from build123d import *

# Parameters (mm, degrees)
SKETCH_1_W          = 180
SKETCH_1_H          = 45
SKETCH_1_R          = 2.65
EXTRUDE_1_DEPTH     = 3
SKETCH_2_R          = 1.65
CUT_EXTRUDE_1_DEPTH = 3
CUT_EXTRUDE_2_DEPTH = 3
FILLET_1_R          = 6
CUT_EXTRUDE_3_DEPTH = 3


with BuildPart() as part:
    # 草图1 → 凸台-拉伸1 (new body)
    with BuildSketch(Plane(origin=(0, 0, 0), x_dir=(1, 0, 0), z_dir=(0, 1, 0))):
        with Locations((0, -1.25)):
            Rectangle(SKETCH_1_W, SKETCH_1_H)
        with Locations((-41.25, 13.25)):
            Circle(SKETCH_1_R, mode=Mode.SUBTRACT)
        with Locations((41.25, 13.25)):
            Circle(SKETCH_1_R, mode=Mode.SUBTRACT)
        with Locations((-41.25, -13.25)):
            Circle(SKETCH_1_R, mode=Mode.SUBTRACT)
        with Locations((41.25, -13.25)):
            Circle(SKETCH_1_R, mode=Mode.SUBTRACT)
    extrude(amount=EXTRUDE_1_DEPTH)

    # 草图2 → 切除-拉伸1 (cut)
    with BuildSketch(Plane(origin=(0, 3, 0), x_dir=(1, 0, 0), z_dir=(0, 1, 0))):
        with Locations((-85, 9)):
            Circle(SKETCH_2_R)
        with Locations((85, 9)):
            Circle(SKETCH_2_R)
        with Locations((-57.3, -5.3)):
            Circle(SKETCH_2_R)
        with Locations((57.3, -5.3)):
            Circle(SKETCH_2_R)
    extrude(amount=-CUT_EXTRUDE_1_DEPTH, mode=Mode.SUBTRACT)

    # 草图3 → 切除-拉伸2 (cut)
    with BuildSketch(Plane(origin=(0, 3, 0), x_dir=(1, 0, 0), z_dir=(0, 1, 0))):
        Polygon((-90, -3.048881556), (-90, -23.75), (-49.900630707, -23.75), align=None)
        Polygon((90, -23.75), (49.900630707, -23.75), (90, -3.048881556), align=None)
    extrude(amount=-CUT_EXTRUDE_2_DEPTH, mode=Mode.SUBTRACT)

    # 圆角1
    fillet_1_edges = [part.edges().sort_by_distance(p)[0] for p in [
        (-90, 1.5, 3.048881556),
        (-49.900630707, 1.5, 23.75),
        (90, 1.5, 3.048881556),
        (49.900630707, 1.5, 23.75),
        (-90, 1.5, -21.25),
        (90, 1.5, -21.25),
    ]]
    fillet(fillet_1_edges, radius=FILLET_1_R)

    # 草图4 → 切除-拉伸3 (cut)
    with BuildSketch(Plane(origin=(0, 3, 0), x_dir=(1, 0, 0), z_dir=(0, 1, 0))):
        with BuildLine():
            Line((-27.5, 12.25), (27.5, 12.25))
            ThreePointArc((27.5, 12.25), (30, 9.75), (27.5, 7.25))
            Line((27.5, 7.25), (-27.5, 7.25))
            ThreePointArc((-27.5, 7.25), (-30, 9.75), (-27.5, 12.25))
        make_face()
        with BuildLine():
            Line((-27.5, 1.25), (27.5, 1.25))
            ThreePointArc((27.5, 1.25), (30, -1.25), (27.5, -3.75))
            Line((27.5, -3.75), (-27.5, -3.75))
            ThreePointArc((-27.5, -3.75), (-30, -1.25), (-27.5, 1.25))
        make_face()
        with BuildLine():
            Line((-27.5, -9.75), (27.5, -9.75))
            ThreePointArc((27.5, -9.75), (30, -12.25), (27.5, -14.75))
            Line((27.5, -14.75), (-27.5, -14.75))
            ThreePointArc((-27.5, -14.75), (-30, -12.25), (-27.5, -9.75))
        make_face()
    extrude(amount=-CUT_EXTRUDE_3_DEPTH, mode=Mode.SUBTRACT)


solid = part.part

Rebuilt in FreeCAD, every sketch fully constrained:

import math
import FreeCAD as App
import Part
import Sketcher
from FreeCAD import Vector
Q = App.Units.Quantity


def edges_at(feature, points):
    """Names of the edges that pass closest to the given points."""
    edges = feature.Shape.Edges
    near = lambda p: min(range(len(edges)), key=lambda i: edges[i].distToShape(Part.Vertex(*p))[0])
    return sorted({f"Edge{near(p) + 1}" for p in points})


def add_polygon(sketch, points):
    """Adds a closed chain of lines whose ends are joined by coincident constraints."""
    first, n = sketch.GeometryCount, len(points)
    for a, b in zip(points, points[1:] + points[:1]):
        sketch.addGeometry(Part.LineSegment(App.Vector(*a, 0), App.Vector(*b, 0)), False)
    for i in range(n):
        sketch.addConstraint(Sketcher.Constraint("Coincident", first + i, 2, first + (i + 1) % n, 1))

doc = App.newDocument("Part")
body = doc.addObject("PartDesign::Body", "Body")

# Sketch on XZ plane
sketch1 = body.newObject("Sketcher::SketchObject", "Sketch")
sketch1.AttachmentSupport = (doc.getObject("XZ_Plane"), [""])
sketch1.MapMode = "FlatFace"
add_polygon(sketch1, [(-90, -21.2), (-90, 23.8), (90, 23.8), (90, -21.2)])  # lines 0-3
sketch1.addGeometry(Part.Circle(Vector(-41.2, 13.2, 0), Vector(0, 0, 1), 2.6), False)  # 4
sketch1.addGeometry(Part.Circle(Vector(41.2, 13.2, 0), Vector(0, 0, 1), 2.6), False)  # 5
sketch1.addGeometry(Part.Circle(Vector(-41.2, -13.2, 0), Vector(0, 0, 1), 2.6), False)  # 6
sketch1.addGeometry(Part.Circle(Vector(41.2, -13.2, 0), Vector(0, 0, 1), 2.6), False)  # 7
sketch1.addConstraint(Sketcher.Constraint("Vertical", 0))
sketch1.addConstraint(Sketcher.Constraint("Horizontal", 1))
sketch1.addConstraint(Sketcher.Constraint("Vertical", 2))
sketch1.addConstraint(Sketcher.Constraint("Horizontal", 3))
sketch1.addConstraint(Sketcher.Constraint("Equal", 4, 5))
sketch1.addConstraint(Sketcher.Constraint("Equal", 5, 6))
sketch1.addConstraint(Sketcher.Constraint("Equal", 6, 7))
sketch1.addConstraint(Sketcher.Constraint("Symmetric", 5, 3, 6, 3, -1, 1))
sketch1.addConstraint(Sketcher.Constraint("Symmetric", 4, 3, 7, 3, -1, 1))
sketch1.addConstraint(Sketcher.Constraint("Symmetric", 4, 3, 5, 3, -2))
sketch1.addConstraint(Sketcher.Constraint("Diameter", 4, Q("5.3 mm")))
sketch1.addConstraint(Sketcher.Constraint("DistanceX", 1, 1, 1, 2, Q("180 mm")))
sketch1.addConstraint(Sketcher.Constraint("DistanceY", 0, 1, 0, 2, Q("45 mm")))
sketch1.addConstraint(Sketcher.Constraint("DistanceX", 0, 2, -1, 1, Q("90 mm")))
sketch1.addConstraint(Sketcher.Constraint("DistanceY", 6, 3, 0, 2, Q("37 mm")))
sketch1.addConstraint(Sketcher.Constraint("DistanceX", 4, 3, 5, 3, Q("82.5 mm")))
sketch1.addConstraint(Sketcher.Constraint("DistanceY", 6, 3, 4, 3, Q("26.5 mm")))
pad1 = body.newObject("PartDesign::Pad", "Pad")
pad1.Profile = sketch1
pad1.Length = 3
pad1.Reversed = True

# Sketch on XZ plane
sketch2 = body.newObject("Sketcher::SketchObject", "Sketch001")
sketch2.AttachmentSupport = (doc.getObject("XZ_Plane"), [""])
sketch2.MapMode = "FlatFace"
sketch2.AttachmentOffset = App.Placement(Vector(0, 0, -3), App.Rotation())
sketch2.addGeometry(Part.Circle(Vector(-85, -9, 0), Vector(0, 0, 1), 1.6), False)
sketch2.addGeometry(Part.Circle(Vector(85, -9, 0), Vector(0, 0, 1), 1.6), False)
sketch2.addGeometry(Part.Circle(Vector(-57.3, 5.3, 0), Vector(0, 0, 1), 1.6), False)
sketch2.addGeometry(Part.Circle(Vector(57.3, 5.3, 0), Vector(0, 0, 1), 1.6), False)
sketch2.addConstraint(Sketcher.Constraint("Equal", 0, 1))
sketch2.addConstraint(Sketcher.Constraint("Equal", 1, 2))
sketch2.addConstraint(Sketcher.Constraint("Equal", 2, 3))
sketch2.addConstraint(Sketcher.Constraint("Symmetric", 0, 3, 1, 3, -2))
sketch2.addConstraint(Sketcher.Constraint("Symmetric", 2, 3, 3, 3, -2))
sketch2.addConstraint(Sketcher.Constraint("Diameter", 0, Q("3.3 mm")))
sketch2.addConstraint(Sketcher.Constraint("DistanceX", 0, 3, -1, 1, Q("85 mm")))
sketch2.addConstraint(Sketcher.Constraint("DistanceY", 0, 3, -1, 1, Q("9 mm")))
sketch2.addConstraint(Sketcher.Constraint("DistanceX", 2, 3, -1, 1, Q("57.3 mm")))
sketch2.addConstraint(Sketcher.Constraint("DistanceY", -1, 1, 2, 3, Q("5.3 mm")))
pocket1 = body.newObject("PartDesign::Pocket", "Pocket")
pocket1.Profile = sketch2
pocket1.Length = 3
pocket1.Reversed = True

# Sketch on XZ plane
sketch3 = body.newObject("Sketcher::SketchObject", "Sketch002")
sketch3.AttachmentSupport = (doc.getObject("XZ_Plane"), [""])
sketch3.MapMode = "FlatFace"
sketch3.AttachmentOffset = App.Placement(Vector(0, 0, -3), App.Rotation())
add_polygon(sketch3, [(-90, 3), (-90, 24), (-50, 24)])  # lines 0-2
add_polygon(sketch3, [(50, 24), (90, 24), (90, 3)])  # lines 3-5
sketch3.addConstraint(Sketcher.Constraint("Vertical", 0))
sketch3.addConstraint(Sketcher.Constraint("Horizontal", 1))
sketch3.addConstraint(Sketcher.Constraint("Horizontal", 3))
sketch3.addConstraint(Sketcher.Constraint("Vertical", 4))
sketch3.addConstraint(Sketcher.Constraint("Symmetric", 0, 2, 3, 2, -2))
sketch3.addConstraint(Sketcher.Constraint("Horizontal", 2, 2, 4, 2))
sketch3.addConstraint(Sketcher.Constraint("Equal", 1, 3))
sketch3.addConstraint(Sketcher.Constraint("DistanceX", 0, 2, -1, 1, Q("90 mm")))
sketch3.addConstraint(Sketcher.Constraint("DistanceY", -1, 1, 0, 2, Q("23.75 mm")))
sketch3.addConstraint(Sketcher.Constraint("DistanceX", 1, 1, 1, 2, Q("40.099369 mm")))
sketch3.addConstraint(Sketcher.Constraint("DistanceY", 0, 1, 0, 2, Q("20.701118 mm")))
pocket2 = body.newObject("PartDesign::Pocket", "Pocket001")
pocket2.Profile = sketch3
pocket2.Length = 3
pocket2.Reversed = True
doc.recompute()

fillet = body.newObject("PartDesign::Fillet", "Fillet")
fillet.Base = (pocket2, edges_at(pocket2, [
    (-90, 1.5, 3.049),
    (-49.901, 1.5, 23.75),
    (90, 1.5, 3.049),
    (49.901, 1.5, 23.75),
    (-90, 1.5, -21.25),
    (90, 1.5, -21.25),
]))
fillet.Radius = 6

# Sketch on XZ plane
sketch4 = body.newObject("Sketcher::SketchObject", "Sketch003")
sketch4.AttachmentSupport = (doc.getObject("XZ_Plane"), [""])
sketch4.MapMode = "FlatFace"
sketch4.AttachmentOffset = App.Placement(Vector(0, 0, -3), App.Rotation())
sketch4.addGeometry(Part.LineSegment(Vector(27.5, -12.2, 0), Vector(-27.5, -12.2, 0)), False)
sketch4.addGeometry(Part.ArcOfCircle(Part.Circle(Vector(-27.5, -9.8, 0), Vector(0, 0, 1), 2.5), math.radians(90), math.radians(270)), False)
sketch4.addGeometry(Part.LineSegment(Vector(-27.5, -7.2, 0), Vector(27.5, -7.2, 0)), False)
sketch4.addGeometry(Part.ArcOfCircle(Part.Circle(Vector(27.5, -9.8, 0), Vector(0, 0, 1), 2.5), math.radians(-90), math.radians(90)), False)
sketch4.addGeometry(Part.LineSegment(Vector(27.5, -1.2, 0), Vector(-27.5, -1.2, 0)), False)
sketch4.addGeometry(Part.ArcOfCircle(Part.Circle(Vector(-27.5, 1.2, 0), Vector(0, 0, 1), 2.5), math.radians(90), math.radians(270)), False)
sketch4.addGeometry(Part.LineSegment(Vector(-27.5, 3.8, 0), Vector(27.5, 3.8, 0)), False)
sketch4.addGeometry(Part.ArcOfCircle(Part.Circle(Vector(27.5, 1.2, 0), Vector(0, 0, 1), 2.5), math.radians(-90), math.radians(90)), False)
sketch4.addGeometry(Part.LineSegment(Vector(27.5, 9.8, 0), Vector(-27.5, 9.8, 0)), False)
sketch4.addGeometry(Part.ArcOfCircle(Part.Circle(Vector(-27.5, 12.2, 0), Vector(0, 0, 1), 2.5), math.radians(90), math.radians(270)), False)
sketch4.addGeometry(Part.LineSegment(Vector(-27.5, 14.8, 0), Vector(27.5, 14.8, 0)), False)
sketch4.addGeometry(Part.ArcOfCircle(Part.Circle(Vector(27.5, 12.2, 0), Vector(0, 0, 1), 2.5), math.radians(-90), math.radians(90)), False)
sketch4.addConstraint(Sketcher.Constraint("Tangent", 0, 2, 1, 2))
sketch4.addConstraint(Sketcher.Constraint("Tangent", 1, 1, 2, 1))
sketch4.addConstraint(Sketcher.Constraint("Tangent", 2, 2, 3, 2))
sketch4.addConstraint(Sketcher.Constraint("Tangent", 3, 1, 0, 1))
sketch4.addConstraint(Sketcher.Constraint("Tangent", 4, 2, 5, 2))
sketch4.addConstraint(Sketcher.Constraint("Tangent", 5, 1, 6, 1))
sketch4.addConstraint(Sketcher.Constraint("Tangent", 6, 2, 7, 2))
sketch4.addConstraint(Sketcher.Constraint("Tangent", 7, 1, 4, 1))
sketch4.addConstraint(Sketcher.Constraint("Tangent", 8, 2, 9, 2))
sketch4.addConstraint(Sketcher.Constraint("Tangent", 9, 1, 10, 1))
sketch4.addConstraint(Sketcher.Constraint("Tangent", 10, 2, 11, 2))
sketch4.addConstraint(Sketcher.Constraint("Tangent", 11, 1, 8, 1))
sketch4.addConstraint(Sketcher.Constraint("Horizontal", 0))
sketch4.addConstraint(Sketcher.Constraint("Horizontal", 2))
sketch4.addConstraint(Sketcher.Constraint("Horizontal", 4))
sketch4.addConstraint(Sketcher.Constraint("Horizontal", 6))
sketch4.addConstraint(Sketcher.Constraint("Horizontal", 8))
sketch4.addConstraint(Sketcher.Constraint("Horizontal", 10))
sketch4.addConstraint(Sketcher.Constraint("Equal", 3, 5))
sketch4.addConstraint(Sketcher.Constraint("Equal", 7, 9))
sketch4.addConstraint(Sketcher.Constraint("Vertical", 1, 3, 5, 3))
sketch4.addConstraint(Sketcher.Constraint("Vertical", 3, 3, 7, 3))
sketch4.addConstraint(Sketcher.Constraint("Vertical", 5, 3, 9, 3))
sketch4.addConstraint(Sketcher.Constraint("Vertical", 7, 3, 11, 3))
sketch4.addConstraint(Sketcher.Constraint("Radius", 1, Q("2.5 mm")))
sketch4.addConstraint(Sketcher.Constraint("DistanceX", 0, 2, 0, 1, Q("55 mm")))
sketch4.addConstraint(Sketcher.Constraint("DistanceY", 1, 3, 5, 3, Q("11 mm")))
sketch4.addConstraint(Sketcher.Constraint("DistanceY", 5, 3, 9, 3, Q("11 mm")))
sketch4.addConstraint(Sketcher.Constraint("DistanceX", 1, 3, -1, 1, Q("27.5 mm")))
sketch4.addConstraint(Sketcher.Constraint("DistanceY", 1, 3, -1, 1, Q("9.75 mm")))
pocket3 = body.newObject("PartDesign::Pocket", "Pocket002")
pocket3.Profile = sketch4
pocket3.Length = 3
pocket3.Reversed = True

doc.recompute()
